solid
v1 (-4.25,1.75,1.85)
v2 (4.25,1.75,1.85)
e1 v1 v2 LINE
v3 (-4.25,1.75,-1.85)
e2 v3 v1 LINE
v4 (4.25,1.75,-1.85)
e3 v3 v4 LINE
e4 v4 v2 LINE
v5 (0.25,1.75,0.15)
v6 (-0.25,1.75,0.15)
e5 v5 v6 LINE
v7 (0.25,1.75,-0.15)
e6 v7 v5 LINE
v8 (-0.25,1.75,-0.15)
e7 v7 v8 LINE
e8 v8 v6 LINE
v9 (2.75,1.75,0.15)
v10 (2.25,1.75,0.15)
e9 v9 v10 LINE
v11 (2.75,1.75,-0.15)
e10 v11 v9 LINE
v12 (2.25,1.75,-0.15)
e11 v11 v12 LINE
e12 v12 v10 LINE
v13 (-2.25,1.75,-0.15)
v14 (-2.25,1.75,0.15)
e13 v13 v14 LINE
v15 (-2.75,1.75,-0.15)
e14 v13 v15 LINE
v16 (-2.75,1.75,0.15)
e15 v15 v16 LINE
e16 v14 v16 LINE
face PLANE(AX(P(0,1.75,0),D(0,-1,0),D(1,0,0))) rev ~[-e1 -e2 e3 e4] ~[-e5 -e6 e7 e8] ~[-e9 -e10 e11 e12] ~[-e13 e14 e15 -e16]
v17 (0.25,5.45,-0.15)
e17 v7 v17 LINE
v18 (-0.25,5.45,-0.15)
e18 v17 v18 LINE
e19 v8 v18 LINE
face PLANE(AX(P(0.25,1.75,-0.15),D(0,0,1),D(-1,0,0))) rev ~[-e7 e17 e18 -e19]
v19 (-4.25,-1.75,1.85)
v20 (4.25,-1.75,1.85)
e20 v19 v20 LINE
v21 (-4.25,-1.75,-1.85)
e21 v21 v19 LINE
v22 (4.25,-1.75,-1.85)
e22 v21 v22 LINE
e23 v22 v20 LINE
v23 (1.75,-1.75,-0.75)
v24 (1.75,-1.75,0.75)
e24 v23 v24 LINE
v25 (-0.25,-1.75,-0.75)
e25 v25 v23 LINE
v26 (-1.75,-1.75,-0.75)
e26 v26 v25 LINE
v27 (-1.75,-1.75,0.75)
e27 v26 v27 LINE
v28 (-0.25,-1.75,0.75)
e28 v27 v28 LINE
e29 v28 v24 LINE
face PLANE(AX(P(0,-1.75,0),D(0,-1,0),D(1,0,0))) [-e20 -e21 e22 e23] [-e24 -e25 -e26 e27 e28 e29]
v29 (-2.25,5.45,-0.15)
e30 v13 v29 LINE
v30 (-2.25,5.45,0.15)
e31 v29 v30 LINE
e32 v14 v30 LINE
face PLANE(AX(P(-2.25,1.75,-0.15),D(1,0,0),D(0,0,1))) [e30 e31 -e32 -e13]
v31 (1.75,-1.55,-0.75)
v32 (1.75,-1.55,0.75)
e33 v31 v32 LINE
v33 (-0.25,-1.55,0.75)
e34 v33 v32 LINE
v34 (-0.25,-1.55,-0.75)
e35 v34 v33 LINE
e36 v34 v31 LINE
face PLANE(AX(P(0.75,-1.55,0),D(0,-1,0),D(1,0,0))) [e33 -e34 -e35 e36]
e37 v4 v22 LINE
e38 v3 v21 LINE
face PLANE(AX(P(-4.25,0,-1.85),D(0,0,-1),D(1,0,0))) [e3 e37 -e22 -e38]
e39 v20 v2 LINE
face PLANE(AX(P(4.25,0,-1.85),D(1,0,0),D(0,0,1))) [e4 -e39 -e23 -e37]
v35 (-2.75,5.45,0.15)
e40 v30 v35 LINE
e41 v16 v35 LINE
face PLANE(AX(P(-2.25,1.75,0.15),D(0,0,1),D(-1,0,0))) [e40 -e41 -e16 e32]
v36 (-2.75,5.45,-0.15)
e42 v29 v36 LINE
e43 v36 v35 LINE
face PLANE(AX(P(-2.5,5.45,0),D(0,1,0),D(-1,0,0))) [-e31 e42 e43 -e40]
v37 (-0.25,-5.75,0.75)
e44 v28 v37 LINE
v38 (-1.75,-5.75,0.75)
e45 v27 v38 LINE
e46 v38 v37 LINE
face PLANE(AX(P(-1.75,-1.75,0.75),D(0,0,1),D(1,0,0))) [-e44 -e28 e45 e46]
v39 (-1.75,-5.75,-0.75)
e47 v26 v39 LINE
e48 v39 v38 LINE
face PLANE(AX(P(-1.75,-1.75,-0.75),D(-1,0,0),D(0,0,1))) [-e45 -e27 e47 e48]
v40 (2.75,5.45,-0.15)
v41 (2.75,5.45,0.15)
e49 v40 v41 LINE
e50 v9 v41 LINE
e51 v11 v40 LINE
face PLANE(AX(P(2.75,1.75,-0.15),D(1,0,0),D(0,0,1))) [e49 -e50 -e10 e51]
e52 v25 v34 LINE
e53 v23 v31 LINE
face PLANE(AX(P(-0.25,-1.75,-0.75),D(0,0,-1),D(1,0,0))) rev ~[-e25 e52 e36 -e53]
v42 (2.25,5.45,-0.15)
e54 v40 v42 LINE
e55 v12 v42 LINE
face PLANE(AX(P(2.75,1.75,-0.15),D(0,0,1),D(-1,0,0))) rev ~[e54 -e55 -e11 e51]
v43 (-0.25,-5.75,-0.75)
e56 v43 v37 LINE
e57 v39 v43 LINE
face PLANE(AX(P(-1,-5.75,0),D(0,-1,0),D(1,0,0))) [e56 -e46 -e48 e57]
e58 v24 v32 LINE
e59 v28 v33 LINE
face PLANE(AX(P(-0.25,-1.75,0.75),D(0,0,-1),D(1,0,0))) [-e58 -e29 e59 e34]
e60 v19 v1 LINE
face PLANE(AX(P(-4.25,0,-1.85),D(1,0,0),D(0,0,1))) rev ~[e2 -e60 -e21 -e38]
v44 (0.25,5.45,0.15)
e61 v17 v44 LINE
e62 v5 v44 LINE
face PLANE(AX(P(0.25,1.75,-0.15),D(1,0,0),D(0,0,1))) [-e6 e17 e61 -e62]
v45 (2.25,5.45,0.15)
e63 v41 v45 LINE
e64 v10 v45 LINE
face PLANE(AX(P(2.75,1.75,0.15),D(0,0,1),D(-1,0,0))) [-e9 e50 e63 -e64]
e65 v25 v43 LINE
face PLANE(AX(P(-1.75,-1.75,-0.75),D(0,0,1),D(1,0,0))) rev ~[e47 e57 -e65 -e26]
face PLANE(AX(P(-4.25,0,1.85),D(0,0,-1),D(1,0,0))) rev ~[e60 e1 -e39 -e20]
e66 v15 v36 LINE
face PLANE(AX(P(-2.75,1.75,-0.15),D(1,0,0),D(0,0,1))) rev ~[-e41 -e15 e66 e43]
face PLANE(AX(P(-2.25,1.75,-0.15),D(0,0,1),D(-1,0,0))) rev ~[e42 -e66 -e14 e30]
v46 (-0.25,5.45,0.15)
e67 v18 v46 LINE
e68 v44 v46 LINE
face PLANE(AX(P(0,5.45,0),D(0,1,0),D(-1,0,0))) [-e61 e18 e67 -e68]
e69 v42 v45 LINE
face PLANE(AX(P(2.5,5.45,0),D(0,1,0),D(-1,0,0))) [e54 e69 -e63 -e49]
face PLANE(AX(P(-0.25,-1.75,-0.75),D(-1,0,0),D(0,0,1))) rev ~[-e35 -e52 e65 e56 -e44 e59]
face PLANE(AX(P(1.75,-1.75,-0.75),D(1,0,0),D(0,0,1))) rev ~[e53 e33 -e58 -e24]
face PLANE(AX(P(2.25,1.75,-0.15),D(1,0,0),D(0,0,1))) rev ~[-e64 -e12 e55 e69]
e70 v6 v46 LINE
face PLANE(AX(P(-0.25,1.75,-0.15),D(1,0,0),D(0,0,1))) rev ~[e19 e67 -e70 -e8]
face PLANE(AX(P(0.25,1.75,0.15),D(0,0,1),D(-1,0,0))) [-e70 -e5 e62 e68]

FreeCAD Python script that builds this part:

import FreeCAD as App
import Part
import Sketcher
from FreeCAD import Vector
Q = App.Units.Quantity


def add_polygon(sketch, points):
    """Adds a closed chain of lines whose ends are joined by coincident constraints."""
    first, n = sketch.GeometryCount, len(points)
    for a, b in zip(points, points[1:] + points[:1]):
        sketch.addGeometry(Part.LineSegment(App.Vector(*a, 0), App.Vector(*b, 0)), False)
    for i in range(n):
        sketch.addConstraint(Sketcher.Constraint("Coincident", first + i, 2, first + (i + 1) % n, 1))

doc = App.newDocument("Part")
body = doc.addObject("PartDesign::Body", "Body")

# Sketch on XZ plane
sketch1 = body.newObject("Sketcher::SketchObject", "Sketch")
sketch1.AttachmentSupport = (doc.getObject("XZ_Plane"), [""])
sketch1.MapMode = "FlatFace"
add_polygon(sketch1, [(-4.25, 1.85), (-4.25, -1.85), (4.25, -1.85), (4.25, 1.85)])  # lines 0-3
sketch1.addConstraint(Sketcher.Constraint("Vertical", 0))
sketch1.addConstraint(Sketcher.Constraint("Horizontal", 1))
sketch1.addConstraint(Sketcher.Constraint("Vertical", 2))
sketch1.addConstraint(Sketcher.Constraint("Horizontal", 3))
sketch1.addConstraint(Sketcher.Constraint("Symmetric", 0, 2, 2, 2, -1, 1))
sketch1.addConstraint(Sketcher.Constraint("DistanceX", 1, 1, 1, 2, Q("8.5 mm")))
sketch1.addConstraint(Sketcher.Constraint("DistanceY", 0, 2, 0, 1, Q("3.7 mm")))
pad1 = body.newObject("PartDesign::Pad", "Pad")
pad1.Profile = sketch1
pad1.Length = 3.5
pad1.Midplane = True

# Sketch on XZ plane
sketch2 = body.newObject("Sketcher::SketchObject", "Sketch001")
sketch2.AttachmentSupport = (doc.getObject("XZ_Plane"), [""])
sketch2.MapMode = "FlatFace"
sketch2.AttachmentOffset = App.Placement(Vector(0, 0, -1.75), App.Rotation())
add_polygon(sketch2, [(0.25, 0.15), (0.25, -0.15), (-0.25, -0.15), (-0.25, 0.15)])  # lines 0-3
add_polygon(sketch2, [(-2.25, 0.15), (-2.25, -0.15), (-2.75, -0.15), (-2.75, 0.15)])  # lines 4-7
add_polygon(sketch2, [(2.75, 0.15), (2.75, -0.15), (2.25, -0.15), (2.25, 0.15)])  # lines 8-11
sketch2.addConstraint(Sketcher.Constraint("Vertical", 0))
sketch2.addConstraint(Sketcher.Constraint("Horizontal", 1))
sketch2.addConstraint(Sketcher.Constraint("Vertical", 2))
sketch2.addConstraint(Sketcher.Constraint("Horizontal", 3))
sketch2.addConstraint(Sketcher.Constraint("Vertical", 4))
sketch2.addConstraint(Sketcher.Constraint("Horizontal", 5))
sketch2.addConstraint(Sketcher.Constraint("Vertical", 6))
sketch2.addConstraint(Sketcher.Constraint("Horizontal", 7))
sketch2.addConstraint(Sketcher.Constraint("Vertical", 8))
sketch2.addConstraint(Sketcher.Constraint("Horizontal", 9))
sketch2.addConstraint(Sketcher.Constraint("Vertical", 10))
sketch2.addConstraint(Sketcher.Constraint("Horizontal", 11))
sketch2.addConstraint(Sketcher.Constraint("Symmetric", 0, 2, 2, 2, -1, 1))
sketch2.addConstraint(Sketcher.Constraint("Symmetric", 6, 2, 8, 2, -1, 1))
sketch2.addConstraint(Sketcher.Constraint("Symmetric", 4, 2, 10, 2, -1, 1))
sketch2.addConstraint(Sketcher.Constraint("Horizontal", 1, 2, 4, 2))
sketch2.addConstraint(Sketcher.Constraint("Horizontal", 3, 2, 6, 2))
sketch2.addConstraint(Sketcher.Constraint("Equal", 3, 5))
sketch2.addConstraint(Sketcher.Constraint("DistanceX", 1, 2, 1, 1, Q("0.5 mm")))
sketch2.addConstraint(Sketcher.Constraint("DistanceY", 0, 2, 0, 1, Q("0.3 mm")))
sketch2.addConstraint(Sketcher.Constraint("DistanceX", 4, 2, 1, 2, Q("2 mm")))
pad2 = body.newObject("PartDesign::Pad", "Pad001")
pad2.Profile = sketch2
pad2.Length = 3.7
pad2.Reversed = True

# Sketch on XZ plane
sketch3 = body.newObject("Sketcher::SketchObject", "Sketch002")
sketch3.AttachmentSupport = (doc.getObject("XZ_Plane"), [""])
sketch3.MapMode = "FlatFace"
sketch3.AttachmentOffset = App.Placement(Vector(0, 0, 1.75), App.Rotation())
add_polygon(sketch3, [(-0.25, 0.75), (-0.25, -0.75), (1.75, -0.75), (1.75, 0.75)])  # lines 0-3
sketch3.addConstraint(Sketcher.Constraint("Vertical", 0))
sketch3.addConstraint(Sketcher.Constraint("Horizontal", 1))
sketch3.addConstraint(Sketcher.Constraint("Vertical", 2))
sketch3.addConstraint(Sketcher.Constraint("Horizontal", 3))
sketch3.addConstraint(Sketcher.Constraint("DistanceX", 1, 1, 1, 2, Q("2 mm")))
sketch3.addConstraint(Sketcher.Constraint("DistanceY", 0, 2, 0, 1, Q("1.5 mm")))
sketch3.addConstraint(Sketcher.Constraint("DistanceX", 0, 2, -1, 1, Q("0.25 mm")))
sketch3.addConstraint(Sketcher.Constraint("DistanceY", 0, 2, -1, 1, Q("0.75 mm")))
pocket1 = body.newObject("PartDesign::Pocket", "Pocket")
pocket1.Profile = sketch3
pocket1.Length = 0.2

# Sketch on XZ plane
sketch4 = body.newObject("Sketcher::SketchObject", "Sketch003")
sketch4.AttachmentSupport = (doc.getObject("XZ_Plane"), [""])
sketch4.MapMode = "FlatFace"
sketch4.AttachmentOffset = App.Placement(Vector(0, 0, 1.75), App.Rotation())
add_polygon(sketch4, [(-1.75, 0.75), (-1.75, -0.75), (-0.25, -0.75), (-0.25, 0.75)])  # lines 0-3
sketch4.addConstraint(Sketcher.Constraint("Vertical", 0))
sketch4.addConstraint(Sketcher.Constraint("Horizontal", 1))
sketch4.addConstraint(Sketcher.Constraint("Vertical", 2))
sketch4.addConstraint(Sketcher.Constraint("Horizontal", 3))
sketch4.addConstraint(Sketcher.Constraint("Equal", 3, 0))
sketch4.addConstraint(Sketcher.Constraint("DistanceX", 1, 1, 1, 2, Q("1.5 mm")))
sketch4.addConstraint(Sketcher.Constraint("DistanceX", 0, 2, -1, 1, Q("1.75 mm")))
sketch4.addConstraint(Sketcher.Constraint("DistanceY", 0, 2, -1, 1, Q("0.75 mm")))
pad3 = body.newObject("PartDesign::Pad", "Pad002")
pad3.Profile = sketch4
pad3.Length = 4

doc.recompute()
